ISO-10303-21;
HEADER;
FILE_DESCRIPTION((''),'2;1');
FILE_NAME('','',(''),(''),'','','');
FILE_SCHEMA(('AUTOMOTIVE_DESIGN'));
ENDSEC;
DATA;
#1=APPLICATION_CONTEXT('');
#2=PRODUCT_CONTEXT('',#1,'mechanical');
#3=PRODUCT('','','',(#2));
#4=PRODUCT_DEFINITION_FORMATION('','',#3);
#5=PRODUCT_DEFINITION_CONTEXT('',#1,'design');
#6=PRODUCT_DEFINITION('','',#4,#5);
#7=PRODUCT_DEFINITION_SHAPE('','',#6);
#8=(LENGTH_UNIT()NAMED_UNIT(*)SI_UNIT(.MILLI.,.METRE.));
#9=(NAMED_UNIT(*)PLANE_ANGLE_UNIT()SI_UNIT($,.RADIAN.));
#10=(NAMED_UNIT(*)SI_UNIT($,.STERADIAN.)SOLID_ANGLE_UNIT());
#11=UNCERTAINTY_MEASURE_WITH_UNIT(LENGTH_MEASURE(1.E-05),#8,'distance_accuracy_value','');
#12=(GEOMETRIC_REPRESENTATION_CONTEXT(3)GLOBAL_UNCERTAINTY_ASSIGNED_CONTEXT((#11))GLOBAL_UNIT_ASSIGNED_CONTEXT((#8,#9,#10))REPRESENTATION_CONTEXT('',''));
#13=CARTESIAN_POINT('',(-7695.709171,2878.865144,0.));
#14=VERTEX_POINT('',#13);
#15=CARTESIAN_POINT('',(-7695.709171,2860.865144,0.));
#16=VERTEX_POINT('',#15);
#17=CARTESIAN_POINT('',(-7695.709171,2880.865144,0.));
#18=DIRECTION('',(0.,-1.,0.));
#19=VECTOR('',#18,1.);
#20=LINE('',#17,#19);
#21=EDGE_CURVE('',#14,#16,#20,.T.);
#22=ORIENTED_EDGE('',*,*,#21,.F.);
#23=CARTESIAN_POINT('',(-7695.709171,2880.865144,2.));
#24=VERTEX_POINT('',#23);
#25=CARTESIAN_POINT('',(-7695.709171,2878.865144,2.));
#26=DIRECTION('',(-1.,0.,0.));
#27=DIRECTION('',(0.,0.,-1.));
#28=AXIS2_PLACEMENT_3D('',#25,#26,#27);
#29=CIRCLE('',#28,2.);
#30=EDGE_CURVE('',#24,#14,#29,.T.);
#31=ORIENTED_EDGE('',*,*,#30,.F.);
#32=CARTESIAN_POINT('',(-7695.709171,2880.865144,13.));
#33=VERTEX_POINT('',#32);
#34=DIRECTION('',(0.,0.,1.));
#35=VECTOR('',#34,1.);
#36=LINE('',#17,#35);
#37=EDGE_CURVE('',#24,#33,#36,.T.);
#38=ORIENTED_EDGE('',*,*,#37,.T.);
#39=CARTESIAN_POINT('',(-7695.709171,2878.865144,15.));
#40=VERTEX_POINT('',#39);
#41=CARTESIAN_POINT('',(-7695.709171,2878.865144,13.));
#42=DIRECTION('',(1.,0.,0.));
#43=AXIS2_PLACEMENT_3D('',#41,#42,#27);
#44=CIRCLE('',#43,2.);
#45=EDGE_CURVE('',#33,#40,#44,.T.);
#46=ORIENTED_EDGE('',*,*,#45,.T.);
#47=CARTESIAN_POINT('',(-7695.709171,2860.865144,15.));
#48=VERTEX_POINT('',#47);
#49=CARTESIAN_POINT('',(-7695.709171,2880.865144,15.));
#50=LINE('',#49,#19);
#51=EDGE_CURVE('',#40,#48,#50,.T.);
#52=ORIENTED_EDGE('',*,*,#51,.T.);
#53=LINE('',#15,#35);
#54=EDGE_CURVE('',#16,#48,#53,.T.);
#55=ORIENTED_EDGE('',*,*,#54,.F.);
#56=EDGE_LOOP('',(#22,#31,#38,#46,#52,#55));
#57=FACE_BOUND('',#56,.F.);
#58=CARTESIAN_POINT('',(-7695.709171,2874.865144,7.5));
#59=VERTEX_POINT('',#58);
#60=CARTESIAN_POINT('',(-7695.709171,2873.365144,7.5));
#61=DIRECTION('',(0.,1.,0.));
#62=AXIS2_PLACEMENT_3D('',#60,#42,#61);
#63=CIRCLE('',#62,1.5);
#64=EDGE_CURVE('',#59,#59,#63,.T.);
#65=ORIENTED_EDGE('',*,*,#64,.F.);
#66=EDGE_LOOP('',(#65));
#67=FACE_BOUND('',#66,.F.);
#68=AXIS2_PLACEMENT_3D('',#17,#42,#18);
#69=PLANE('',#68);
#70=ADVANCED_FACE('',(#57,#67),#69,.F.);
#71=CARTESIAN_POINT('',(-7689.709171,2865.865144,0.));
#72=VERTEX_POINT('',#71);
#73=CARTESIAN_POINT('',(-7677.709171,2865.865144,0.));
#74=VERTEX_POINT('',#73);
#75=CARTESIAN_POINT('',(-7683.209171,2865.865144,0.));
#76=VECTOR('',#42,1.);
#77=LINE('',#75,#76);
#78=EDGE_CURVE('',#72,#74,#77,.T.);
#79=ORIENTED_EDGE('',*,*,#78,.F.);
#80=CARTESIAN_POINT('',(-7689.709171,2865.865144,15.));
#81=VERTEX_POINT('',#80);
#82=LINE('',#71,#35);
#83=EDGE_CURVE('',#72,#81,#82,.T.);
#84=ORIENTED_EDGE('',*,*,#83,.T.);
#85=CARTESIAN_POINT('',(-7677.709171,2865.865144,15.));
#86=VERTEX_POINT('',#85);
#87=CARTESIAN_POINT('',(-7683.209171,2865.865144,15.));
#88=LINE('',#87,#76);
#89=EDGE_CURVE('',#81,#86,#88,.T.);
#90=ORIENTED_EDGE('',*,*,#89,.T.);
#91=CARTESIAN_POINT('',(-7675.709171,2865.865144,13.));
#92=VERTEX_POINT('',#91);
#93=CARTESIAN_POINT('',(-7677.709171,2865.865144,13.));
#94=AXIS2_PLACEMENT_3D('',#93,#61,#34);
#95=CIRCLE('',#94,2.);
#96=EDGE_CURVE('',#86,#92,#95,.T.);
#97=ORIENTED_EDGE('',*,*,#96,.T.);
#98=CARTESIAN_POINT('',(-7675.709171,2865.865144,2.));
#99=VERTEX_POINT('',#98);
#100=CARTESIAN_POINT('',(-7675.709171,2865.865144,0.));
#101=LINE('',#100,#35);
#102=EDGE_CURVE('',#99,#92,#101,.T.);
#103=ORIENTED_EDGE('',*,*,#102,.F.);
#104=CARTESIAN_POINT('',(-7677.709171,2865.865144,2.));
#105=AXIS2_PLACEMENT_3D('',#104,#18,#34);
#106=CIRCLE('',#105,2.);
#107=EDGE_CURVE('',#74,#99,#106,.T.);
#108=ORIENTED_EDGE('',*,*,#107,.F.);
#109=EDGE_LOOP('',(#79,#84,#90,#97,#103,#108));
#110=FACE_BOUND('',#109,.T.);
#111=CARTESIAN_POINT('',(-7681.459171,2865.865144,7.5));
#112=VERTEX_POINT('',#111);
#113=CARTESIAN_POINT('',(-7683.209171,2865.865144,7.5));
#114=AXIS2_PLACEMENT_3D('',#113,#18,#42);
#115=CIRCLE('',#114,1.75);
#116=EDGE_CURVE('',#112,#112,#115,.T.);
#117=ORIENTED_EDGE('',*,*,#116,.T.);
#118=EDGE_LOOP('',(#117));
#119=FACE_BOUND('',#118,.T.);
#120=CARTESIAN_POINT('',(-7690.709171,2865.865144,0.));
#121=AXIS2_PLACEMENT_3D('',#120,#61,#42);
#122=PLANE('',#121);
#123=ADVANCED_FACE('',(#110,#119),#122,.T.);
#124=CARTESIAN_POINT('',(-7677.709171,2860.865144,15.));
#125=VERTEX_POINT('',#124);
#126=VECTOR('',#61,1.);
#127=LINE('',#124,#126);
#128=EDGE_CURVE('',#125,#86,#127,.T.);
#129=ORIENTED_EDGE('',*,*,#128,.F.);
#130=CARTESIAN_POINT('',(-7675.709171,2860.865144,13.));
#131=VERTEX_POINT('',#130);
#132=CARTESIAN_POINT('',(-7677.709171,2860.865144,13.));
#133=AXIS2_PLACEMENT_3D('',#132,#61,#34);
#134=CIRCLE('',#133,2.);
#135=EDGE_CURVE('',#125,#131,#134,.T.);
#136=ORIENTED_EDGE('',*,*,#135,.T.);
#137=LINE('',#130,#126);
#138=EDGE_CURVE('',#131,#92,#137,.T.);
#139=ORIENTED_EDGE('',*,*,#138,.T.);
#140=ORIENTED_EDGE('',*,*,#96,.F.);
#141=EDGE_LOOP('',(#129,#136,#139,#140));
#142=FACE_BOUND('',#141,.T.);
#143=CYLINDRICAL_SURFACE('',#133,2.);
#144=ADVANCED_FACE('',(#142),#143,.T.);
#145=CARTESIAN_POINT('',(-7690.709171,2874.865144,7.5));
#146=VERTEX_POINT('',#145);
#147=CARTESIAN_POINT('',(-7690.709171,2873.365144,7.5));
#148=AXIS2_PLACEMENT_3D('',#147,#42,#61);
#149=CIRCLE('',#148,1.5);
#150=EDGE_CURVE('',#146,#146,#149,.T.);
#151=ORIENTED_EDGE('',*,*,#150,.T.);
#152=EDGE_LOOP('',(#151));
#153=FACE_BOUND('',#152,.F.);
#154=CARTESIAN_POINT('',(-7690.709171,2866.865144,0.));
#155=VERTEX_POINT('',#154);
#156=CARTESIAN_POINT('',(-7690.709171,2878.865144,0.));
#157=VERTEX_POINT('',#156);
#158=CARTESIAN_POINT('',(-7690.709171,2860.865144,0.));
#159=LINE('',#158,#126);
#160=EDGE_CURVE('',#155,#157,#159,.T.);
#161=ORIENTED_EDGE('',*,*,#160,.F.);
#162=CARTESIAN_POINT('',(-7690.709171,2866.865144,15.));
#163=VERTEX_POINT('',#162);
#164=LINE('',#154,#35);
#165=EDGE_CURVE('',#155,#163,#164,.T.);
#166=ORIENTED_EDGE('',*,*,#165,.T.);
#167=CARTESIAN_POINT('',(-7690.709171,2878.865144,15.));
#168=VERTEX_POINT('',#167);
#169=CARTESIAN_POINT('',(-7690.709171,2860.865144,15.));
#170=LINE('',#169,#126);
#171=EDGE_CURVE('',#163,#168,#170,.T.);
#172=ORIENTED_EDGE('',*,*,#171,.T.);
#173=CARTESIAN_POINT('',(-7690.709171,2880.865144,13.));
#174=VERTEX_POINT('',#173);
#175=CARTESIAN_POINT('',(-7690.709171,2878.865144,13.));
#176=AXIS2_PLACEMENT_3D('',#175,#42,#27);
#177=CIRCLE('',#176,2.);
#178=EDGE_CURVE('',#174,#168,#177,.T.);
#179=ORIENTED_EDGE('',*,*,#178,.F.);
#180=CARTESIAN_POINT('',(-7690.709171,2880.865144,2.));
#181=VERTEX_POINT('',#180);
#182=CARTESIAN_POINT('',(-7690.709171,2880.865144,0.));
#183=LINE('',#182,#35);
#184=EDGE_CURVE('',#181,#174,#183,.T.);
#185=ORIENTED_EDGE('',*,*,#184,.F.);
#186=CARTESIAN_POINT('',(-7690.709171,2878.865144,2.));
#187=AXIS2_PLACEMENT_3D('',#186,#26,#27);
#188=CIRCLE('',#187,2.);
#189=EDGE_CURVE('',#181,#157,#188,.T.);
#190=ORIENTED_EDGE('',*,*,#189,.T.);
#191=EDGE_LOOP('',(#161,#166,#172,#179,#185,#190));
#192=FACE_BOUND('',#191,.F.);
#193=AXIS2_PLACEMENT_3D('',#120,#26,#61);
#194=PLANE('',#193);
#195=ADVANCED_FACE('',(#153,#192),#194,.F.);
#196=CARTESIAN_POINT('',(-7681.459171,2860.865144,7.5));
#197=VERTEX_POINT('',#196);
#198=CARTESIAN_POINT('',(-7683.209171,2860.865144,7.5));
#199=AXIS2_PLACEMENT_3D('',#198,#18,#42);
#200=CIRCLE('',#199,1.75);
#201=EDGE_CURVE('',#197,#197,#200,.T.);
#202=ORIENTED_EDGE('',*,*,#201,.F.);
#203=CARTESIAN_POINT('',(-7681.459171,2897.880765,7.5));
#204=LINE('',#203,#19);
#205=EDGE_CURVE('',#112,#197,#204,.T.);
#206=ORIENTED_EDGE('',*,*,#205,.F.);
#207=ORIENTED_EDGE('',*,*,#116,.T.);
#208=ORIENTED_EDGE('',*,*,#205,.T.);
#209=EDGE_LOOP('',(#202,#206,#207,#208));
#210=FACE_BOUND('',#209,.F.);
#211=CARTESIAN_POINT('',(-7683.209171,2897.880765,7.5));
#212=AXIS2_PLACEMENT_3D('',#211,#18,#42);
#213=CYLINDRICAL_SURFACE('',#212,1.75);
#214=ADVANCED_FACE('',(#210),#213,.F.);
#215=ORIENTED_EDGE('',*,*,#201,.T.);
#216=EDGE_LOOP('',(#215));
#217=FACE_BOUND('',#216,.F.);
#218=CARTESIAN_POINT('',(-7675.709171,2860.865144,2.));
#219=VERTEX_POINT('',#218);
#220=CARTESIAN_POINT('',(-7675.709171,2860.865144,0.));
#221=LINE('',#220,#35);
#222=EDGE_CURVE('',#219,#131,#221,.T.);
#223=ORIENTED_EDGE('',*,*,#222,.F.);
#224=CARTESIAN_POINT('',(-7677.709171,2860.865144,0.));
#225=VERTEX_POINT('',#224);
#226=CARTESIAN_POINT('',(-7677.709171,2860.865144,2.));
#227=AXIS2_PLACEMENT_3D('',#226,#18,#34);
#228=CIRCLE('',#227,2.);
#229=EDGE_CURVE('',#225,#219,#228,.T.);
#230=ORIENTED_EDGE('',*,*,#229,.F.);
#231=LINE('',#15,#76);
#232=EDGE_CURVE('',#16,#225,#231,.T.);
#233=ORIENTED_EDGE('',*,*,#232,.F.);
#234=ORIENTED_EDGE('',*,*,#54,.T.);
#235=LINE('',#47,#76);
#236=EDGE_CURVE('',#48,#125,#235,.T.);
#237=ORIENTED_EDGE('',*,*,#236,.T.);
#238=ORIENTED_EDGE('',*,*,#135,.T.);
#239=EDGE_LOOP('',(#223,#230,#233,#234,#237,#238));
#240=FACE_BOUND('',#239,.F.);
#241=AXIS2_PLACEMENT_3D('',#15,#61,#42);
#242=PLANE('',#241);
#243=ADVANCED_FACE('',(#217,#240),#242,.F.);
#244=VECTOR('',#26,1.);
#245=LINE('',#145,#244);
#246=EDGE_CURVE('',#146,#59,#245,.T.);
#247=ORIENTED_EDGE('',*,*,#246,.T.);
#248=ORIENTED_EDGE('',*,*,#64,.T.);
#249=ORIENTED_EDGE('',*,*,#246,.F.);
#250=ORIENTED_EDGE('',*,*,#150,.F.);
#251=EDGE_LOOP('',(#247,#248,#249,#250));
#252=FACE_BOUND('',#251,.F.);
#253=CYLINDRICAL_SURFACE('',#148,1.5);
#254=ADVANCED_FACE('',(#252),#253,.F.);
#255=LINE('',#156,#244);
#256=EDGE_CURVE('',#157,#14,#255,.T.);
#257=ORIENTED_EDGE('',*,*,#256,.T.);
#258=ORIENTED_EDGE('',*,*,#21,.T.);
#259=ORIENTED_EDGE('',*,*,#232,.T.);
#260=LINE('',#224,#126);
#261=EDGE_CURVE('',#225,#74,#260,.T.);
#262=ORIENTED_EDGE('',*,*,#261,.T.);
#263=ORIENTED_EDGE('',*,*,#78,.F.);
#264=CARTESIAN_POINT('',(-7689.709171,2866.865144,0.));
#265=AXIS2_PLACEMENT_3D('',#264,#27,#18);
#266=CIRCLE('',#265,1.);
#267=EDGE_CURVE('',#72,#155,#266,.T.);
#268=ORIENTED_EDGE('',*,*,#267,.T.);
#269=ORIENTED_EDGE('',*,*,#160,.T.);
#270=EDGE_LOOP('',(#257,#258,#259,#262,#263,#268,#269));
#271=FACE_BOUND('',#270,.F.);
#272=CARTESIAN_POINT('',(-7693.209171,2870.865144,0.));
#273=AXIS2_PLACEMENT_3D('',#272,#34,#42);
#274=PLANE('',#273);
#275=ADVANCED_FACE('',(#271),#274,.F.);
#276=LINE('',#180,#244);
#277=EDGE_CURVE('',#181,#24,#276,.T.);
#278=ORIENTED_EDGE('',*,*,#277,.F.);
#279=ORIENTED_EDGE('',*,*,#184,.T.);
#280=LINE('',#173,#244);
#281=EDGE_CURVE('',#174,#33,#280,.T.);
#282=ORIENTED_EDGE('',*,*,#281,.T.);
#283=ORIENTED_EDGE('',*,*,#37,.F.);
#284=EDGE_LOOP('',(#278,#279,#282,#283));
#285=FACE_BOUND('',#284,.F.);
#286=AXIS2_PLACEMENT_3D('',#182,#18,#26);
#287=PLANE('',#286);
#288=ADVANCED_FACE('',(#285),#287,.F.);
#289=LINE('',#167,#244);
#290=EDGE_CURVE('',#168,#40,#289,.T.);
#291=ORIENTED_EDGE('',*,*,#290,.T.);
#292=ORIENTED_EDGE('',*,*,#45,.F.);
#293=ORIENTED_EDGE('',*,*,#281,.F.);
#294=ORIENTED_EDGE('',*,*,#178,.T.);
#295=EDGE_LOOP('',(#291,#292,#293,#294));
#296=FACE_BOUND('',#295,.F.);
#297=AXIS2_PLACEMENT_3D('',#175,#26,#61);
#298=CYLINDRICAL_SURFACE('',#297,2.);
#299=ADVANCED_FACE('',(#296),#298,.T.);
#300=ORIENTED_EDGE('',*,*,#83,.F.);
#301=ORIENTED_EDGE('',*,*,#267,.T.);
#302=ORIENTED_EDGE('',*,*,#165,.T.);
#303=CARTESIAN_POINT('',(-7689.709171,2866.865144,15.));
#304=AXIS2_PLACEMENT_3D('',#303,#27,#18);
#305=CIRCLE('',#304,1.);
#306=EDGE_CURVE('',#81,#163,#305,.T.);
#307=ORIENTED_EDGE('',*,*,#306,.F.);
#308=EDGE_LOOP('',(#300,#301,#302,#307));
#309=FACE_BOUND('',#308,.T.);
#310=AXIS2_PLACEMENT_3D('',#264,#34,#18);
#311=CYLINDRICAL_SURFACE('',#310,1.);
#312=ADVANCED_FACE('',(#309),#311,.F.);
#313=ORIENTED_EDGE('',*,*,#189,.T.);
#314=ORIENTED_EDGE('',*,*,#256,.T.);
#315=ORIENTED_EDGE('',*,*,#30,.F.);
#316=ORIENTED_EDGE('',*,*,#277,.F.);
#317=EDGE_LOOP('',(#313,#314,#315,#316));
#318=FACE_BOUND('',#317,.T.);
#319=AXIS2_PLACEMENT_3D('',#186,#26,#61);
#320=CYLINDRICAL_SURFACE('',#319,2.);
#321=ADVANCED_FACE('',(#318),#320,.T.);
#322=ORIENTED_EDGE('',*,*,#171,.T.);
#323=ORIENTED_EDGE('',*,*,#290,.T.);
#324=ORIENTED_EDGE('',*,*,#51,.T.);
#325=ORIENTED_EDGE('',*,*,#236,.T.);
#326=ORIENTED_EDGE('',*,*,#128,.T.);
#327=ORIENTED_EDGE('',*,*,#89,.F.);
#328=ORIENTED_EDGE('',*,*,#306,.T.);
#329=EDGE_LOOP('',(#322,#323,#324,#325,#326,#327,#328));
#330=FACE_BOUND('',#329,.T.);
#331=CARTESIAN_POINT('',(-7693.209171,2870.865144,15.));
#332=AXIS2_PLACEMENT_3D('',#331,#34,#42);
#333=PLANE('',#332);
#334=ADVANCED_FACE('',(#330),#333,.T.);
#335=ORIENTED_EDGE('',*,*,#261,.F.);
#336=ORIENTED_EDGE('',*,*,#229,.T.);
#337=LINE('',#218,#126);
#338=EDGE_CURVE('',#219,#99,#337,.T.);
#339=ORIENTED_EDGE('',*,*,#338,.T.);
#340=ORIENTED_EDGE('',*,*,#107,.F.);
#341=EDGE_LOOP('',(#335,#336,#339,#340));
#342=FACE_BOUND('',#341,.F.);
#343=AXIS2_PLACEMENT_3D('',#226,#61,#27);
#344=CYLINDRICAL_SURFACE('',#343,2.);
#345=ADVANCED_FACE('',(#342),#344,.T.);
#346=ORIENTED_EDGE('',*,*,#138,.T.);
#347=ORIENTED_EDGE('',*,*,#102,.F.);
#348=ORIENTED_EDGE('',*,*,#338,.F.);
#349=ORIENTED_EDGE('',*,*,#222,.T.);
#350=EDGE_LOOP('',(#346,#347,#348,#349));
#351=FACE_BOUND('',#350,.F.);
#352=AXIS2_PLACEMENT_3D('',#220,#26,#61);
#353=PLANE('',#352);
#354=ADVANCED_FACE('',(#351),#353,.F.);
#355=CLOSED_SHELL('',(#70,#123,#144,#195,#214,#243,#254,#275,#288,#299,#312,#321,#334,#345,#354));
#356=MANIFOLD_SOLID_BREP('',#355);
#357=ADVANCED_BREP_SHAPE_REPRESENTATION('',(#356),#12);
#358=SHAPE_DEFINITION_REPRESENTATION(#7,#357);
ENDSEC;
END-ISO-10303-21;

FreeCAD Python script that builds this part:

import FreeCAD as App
import Part
import Sketcher

V = App.Vector


def edges_at(feature, points):
    """Names of the edges that pass closest to the given points."""
    edges = feature.Shape.Edges
    near = lambda p: min(range(len(edges)), key=lambda i: edges[i].distToShape(Part.Vertex(*p))[0])
    return sorted({f"Edge{near(p) + 1}" for p in points})

doc = App.newDocument("Part")
body = doc.addObject("PartDesign::Body", "Body")

# Sketch on XY plane
sketch1 = doc.addObject("Sketcher::SketchObject", "Sketch")
body.addObject(sketch1)
sketch1.AttachmentSupport = (doc.XY_Plane, [""])
sketch1.MapMode = "FlatFace"
sketch1.addGeometry([
    Part.LineSegment(V(-7695.709171, 2880.865144, 0), V(-7695.709171, 2860.865144, 0)),  # 0
    Part.LineSegment(V(-7695.709171, 2860.865144, 0), V(-7675.709171, 2860.865144, 0)),  # 1
    Part.LineSegment(V(-7675.709171, 2860.865144, 0), V(-7675.709171, 2865.865144, 0)),  # 2
    Part.LineSegment(V(-7675.709171, 2865.865144, 0), V(-7690.709171, 2865.865144, 0)),  # 3
    Part.LineSegment(V(-7690.709171, 2865.865144, 0), V(-7690.709171, 2880.865144, 0)),  # 4
    Part.LineSegment(V(-7690.709171, 2880.865144, 0), V(-7695.709171, 2880.865144, 0)),  # 5
], False)
sketch1.addConstraint([
    Sketcher.Constraint("Coincident", 0, 2, 1, 1),
    Sketcher.Constraint("Coincident", 1, 2, 2, 1),
    Sketcher.Constraint("Coincident", 2, 2, 3, 1),
    Sketcher.Constraint("Coincident", 3, 2, 4, 1),
    Sketcher.Constraint("Coincident", 4, 2, 5, 1),
    Sketcher.Constraint("Coincident", 5, 2, 0, 1),
    Sketcher.Constraint("Vertical", 0),
    Sketcher.Constraint("Horizontal", 1),
    Sketcher.Constraint("Vertical", 2),
    Sketcher.Constraint("Horizontal", 3),
    Sketcher.Constraint("Vertical", 4),
    Sketcher.Constraint("Horizontal", 5),
    Sketcher.Constraint("Equal", 1, 0),
    Sketcher.Constraint("Equal", 5, 2),
    Sketcher.Constraint("DistanceX", 1, 1, 1, 2, 20.0),
    Sketcher.Constraint("DistanceX", 3, 2, 3, 1, 15.0),
    Sketcher.Constraint("DistanceX", 0, 2, -1, 1, 7695.709171),
    Sketcher.Constraint("DistanceY", -1, 1, 0, 2, 2860.865144),
])
pad1 = doc.addObject("PartDesign::Pad", "Pad")
body.addObject(pad1)
pad1.Profile = sketch1
pad1.Length = 15

# Sketch on YZ plane
sketch2 = doc.addObject("Sketcher::SketchObject", "Sketch001")
body.addObject(sketch2)
sketch2.AttachmentSupport = (doc.YZ_Plane, [""])
sketch2.MapMode = "FlatFace"
sketch2.AttachmentOffset = App.Placement(V(0, 0, -7690.709171), App.Rotation())
sketch2.addGeometry(Part.Circle(V(2873.365144, 7.5, 0), V(0, 0, 1), 1.5), False)
sketch2.addConstraint([
    Sketcher.Constraint("Diameter", 0, 3.0),
    Sketcher.Constraint("DistanceY", -1, 1, 0, 3, 7.5),
    Sketcher.Constraint("DistanceX", -1, 1, 0, 3, 2873.365144),
])
pocket1 = doc.addObject("PartDesign::Pocket", "Pocket")
body.addObject(pocket1)
pocket1.Profile = sketch2
pocket1.Length = 127

# Sketch on XZ plane
sketch3 = doc.addObject("Sketcher::SketchObject", "Sketch002")
body.addObject(sketch3)
sketch3.AttachmentSupport = (doc.XZ_Plane, [""])
sketch3.MapMode = "FlatFace"
sketch3.AttachmentOffset = App.Placement(V(0, 0, -2865.865144), App.Rotation())
sketch3.addGeometry(Part.Circle(V(-7683.209171, 7.5, 0), V(0, 0, 1), 1.75), False)
sketch3.addConstraint([
    Sketcher.Constraint("Diameter", 0, 3.5),
    Sketcher.Constraint("DistanceY", -1, 1, 0, 3, 7.5),
    Sketcher.Constraint("DistanceX", 0, 3, -1, 1, 7683.209171),
])
doc.recompute()
hole = doc.addObject("PartDesign::Hole", "Hole")
body.addObject(hole)
hole.Profile = sketch3
hole.ThreadType = "None"
hole.Diameter = 3.5
hole.DepthType = "ThroughAll"
hole.Reversed = True
doc.recompute()

fillet = doc.addObject("PartDesign::Fillet", "Fillet")
body.addObject(fillet)
fillet.Base = (hole, edges_at(hole, [(-7693.209, 2880.865, 15), (-7693.209, 2880.865, 0)]))
fillet.Radius = 2
doc.recompute()

fillet2 = doc.addObject("PartDesign::Fillet", "Fillet001")
body.addObject(fillet2)
fillet2.Base = (fillet, edges_at(fillet, [(-7675.709, 2863.365, 15), (-7675.709, 2863.365, 0)]))
fillet2.Radius = 2
doc.recompute()

fillet3 = doc.addObject("PartDesign::Fillet", "Fillet002")
body.addObject(fillet3)
fillet3.Base = (fillet2, edges_at(fillet2, [(-7690.709, 2865.865, 7.5)]))
fillet3.Radius = 1

doc.recompute()
